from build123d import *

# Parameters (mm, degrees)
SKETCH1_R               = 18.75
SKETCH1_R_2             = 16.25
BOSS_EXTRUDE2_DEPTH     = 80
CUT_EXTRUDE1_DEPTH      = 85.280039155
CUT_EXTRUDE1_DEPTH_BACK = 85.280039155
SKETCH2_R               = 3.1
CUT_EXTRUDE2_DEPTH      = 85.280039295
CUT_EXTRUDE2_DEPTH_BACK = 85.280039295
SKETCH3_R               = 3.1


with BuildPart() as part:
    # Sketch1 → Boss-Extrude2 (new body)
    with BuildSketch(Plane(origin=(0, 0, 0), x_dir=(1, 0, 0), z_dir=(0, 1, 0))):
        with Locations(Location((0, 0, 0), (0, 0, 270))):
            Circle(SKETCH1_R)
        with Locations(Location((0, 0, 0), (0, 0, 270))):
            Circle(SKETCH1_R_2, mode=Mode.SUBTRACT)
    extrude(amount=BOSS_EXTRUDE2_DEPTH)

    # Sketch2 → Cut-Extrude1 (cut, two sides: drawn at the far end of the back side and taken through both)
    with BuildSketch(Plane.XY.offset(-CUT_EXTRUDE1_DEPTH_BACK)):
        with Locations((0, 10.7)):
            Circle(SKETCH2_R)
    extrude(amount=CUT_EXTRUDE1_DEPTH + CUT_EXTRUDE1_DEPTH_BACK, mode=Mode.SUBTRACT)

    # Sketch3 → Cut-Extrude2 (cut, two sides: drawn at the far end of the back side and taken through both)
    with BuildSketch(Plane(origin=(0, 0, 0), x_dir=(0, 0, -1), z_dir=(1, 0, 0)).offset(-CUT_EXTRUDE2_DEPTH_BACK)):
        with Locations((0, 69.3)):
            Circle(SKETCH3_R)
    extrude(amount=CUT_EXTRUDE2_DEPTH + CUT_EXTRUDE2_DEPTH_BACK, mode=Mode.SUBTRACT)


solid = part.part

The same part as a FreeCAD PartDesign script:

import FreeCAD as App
import Part
import Sketcher

V = App.Vector

doc = App.newDocument("Part")
body = doc.addObject("PartDesign::Body", "Body")

sketch1 = body.newObject("Sketcher::SketchObject", "Sketch")
sketch1.AttachmentSupport = (doc.getObject("XZ_Plane"), [""])
sketch1.MapMode = "FlatFace"
sketch1.addGeometry(Part.Circle(V(0, 0, 0), V(0, 0, 1), 19), False)
sketch1.addGeometry(Part.Circle(V(0, 0, 0), V(0, 0, 1), 16), False)
sketch1.addConstraint(Sketcher.Constraint("Coincident", 0, 3, -1, 1))
sketch1.addConstraint(Sketcher.Constraint("Coincident", 1, 3, -1, 1))
sketch1.addConstraint(Sketcher.Constraint("Diameter", 0, 37.5))
sketch1.addConstraint(Sketcher.Constraint("Diameter", 1, 32.5))
pad1 = body.newObject("PartDesign::Pad", "Pad")
pad1.Profile = sketch1
pad1.Length = 80
pad1.Reversed = True

sketch2 = body.newObject("Sketcher::SketchObject", "Sketch001")
sketch2.AttachmentSupport = (doc.getObject("XY_Plane"), [""])
sketch2.MapMode = "FlatFace"
sketch2.addGeometry(Part.Circle(V(0, 10.7, 0), V(0, 0, 1), 3.1), False)
sketch2.addConstraint(Sketcher.Constraint("PointOnObject", 0, 3, -2))
sketch2.addConstraint(Sketcher.Constraint("Diameter", 0, 6.2))
sketch2.addConstraint(Sketcher.Constraint("DistanceY", -1, 1, 0, 3, 10.7))
pocket1 = body.newObject("PartDesign::Pocket", "Pocket")
pocket1.Profile = sketch2
pocket1.Type = "ThroughAll"
pocket1.Midplane = True

sketch3 = body.newObject("Sketcher::SketchObject", "Sketch002")
sketch3.AttachmentSupport = (doc.getObject("YZ_Plane"), [""])
sketch3.MapMode = "FlatFace"
sketch3.addGeometry(Part.Circle(V(69.3, 0, 0), V(0, 0, 1), 3.1), False)
sketch3.addConstraint(Sketcher.Constraint("PointOnObject", 0, 3, -1))
sketch3.addConstraint(Sketcher.Constraint("Diameter", 0, 6.2))
sketch3.addConstraint(Sketcher.Constraint("DistanceX", -1, 1, 0, 3, 69.3))
pocket2 = body.newObject("PartDesign::Pocket", "Pocket001")
pocket2.Profile = sketch3
pocket2.Type = "ThroughAll"
pocket2.Midplane = True

doc.recompute()
